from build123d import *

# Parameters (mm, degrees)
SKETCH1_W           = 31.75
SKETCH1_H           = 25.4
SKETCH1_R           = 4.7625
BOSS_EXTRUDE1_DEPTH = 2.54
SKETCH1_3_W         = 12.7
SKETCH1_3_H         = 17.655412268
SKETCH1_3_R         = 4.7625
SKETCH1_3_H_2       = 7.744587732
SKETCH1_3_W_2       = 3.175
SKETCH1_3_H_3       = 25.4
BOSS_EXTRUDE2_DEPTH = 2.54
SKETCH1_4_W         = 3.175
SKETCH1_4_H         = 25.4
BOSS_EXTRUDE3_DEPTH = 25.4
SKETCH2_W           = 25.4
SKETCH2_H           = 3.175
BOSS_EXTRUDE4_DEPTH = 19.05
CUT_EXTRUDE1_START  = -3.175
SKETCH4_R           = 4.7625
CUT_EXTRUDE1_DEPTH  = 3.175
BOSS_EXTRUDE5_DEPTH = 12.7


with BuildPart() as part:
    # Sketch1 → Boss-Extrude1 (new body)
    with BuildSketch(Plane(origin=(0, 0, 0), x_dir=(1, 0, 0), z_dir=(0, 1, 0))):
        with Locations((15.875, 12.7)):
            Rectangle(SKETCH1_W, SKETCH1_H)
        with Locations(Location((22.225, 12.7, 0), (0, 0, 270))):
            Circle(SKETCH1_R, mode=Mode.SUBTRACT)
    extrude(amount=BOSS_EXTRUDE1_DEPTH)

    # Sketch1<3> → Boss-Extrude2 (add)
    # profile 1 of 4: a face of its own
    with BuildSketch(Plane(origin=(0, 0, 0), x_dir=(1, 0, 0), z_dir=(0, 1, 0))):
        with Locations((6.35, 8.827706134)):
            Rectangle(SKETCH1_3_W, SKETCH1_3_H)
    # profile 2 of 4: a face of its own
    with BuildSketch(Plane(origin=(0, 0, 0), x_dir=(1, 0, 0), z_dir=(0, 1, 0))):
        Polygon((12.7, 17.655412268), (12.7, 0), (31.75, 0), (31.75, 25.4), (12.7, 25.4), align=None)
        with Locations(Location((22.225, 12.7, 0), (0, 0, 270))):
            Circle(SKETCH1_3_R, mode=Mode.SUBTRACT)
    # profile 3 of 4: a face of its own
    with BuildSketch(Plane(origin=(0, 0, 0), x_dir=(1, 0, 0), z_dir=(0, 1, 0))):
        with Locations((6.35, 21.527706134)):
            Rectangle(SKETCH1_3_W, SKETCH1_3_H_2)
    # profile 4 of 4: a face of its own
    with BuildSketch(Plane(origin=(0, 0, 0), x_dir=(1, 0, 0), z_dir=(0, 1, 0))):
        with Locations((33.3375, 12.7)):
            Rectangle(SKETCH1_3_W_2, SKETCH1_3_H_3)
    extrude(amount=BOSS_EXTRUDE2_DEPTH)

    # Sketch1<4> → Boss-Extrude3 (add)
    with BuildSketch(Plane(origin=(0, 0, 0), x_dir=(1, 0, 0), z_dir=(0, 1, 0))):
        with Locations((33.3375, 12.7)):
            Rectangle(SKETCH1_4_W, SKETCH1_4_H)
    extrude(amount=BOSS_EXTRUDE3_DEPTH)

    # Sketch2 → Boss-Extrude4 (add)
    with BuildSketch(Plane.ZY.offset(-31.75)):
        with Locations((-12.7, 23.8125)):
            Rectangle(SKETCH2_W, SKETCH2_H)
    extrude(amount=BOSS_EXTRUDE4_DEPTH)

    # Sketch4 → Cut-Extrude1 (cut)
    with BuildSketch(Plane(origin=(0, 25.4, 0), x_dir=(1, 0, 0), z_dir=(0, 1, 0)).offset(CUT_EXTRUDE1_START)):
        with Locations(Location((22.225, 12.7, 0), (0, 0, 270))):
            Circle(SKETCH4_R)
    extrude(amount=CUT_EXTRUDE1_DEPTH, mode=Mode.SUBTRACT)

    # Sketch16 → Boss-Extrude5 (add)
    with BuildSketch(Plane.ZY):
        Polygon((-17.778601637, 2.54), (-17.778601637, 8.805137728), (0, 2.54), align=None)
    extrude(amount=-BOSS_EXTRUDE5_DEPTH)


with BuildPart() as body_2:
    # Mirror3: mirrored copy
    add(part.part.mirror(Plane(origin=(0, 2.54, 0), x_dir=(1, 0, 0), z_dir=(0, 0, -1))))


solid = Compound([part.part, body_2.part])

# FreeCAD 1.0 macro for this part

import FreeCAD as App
import Part
import Sketcher
from FreeCAD import Vector
Q = App.Units.Quantity


def add_polygon(sketch, points):
    """Adds a closed chain of lines whose ends are joined by coincident constraints."""
    first, n = sketch.GeometryCount, len(points)
    for a, b in zip(points, points[1:] + points[:1]):
        sketch.addGeometry(Part.LineSegment(App.Vector(*a, 0), App.Vector(*b, 0)), False)
    for i in range(n):
        sketch.addConstraint(Sketcher.Constraint("Coincident", first + i, 2, first + (i + 1) % n, 1))

doc = App.newDocument("Part")
body = doc.addObject("PartDesign::Body", "Body")

sketch1 = doc.addObject("Sketcher::SketchObject", "Sketch")
body.addObject(sketch1)
sketch1.AttachmentSupport = (doc.XZ_Plane, [""])
sketch1.MapMode = "FlatFace"
add_polygon(sketch1, [(0, -25.4), (0, 0), (31.75, 0), (31.75, -25.4)])
sketch1.addGeometry(Part.Circle(Vector(22.225, -12.7, 0), Vector(0, 0, 1), 4.7625), False)
sketch1.addConstraint([
    Sketcher.Constraint("Vertical", 0),
    Sketcher.Constraint("Horizontal", 1),
    Sketcher.Constraint("Vertical", 2),
    Sketcher.Constraint("Horizontal", 3),
    Sketcher.Constraint("Coincident", 0, 2, -1, 1),
    Sketcher.Constraint("DistanceY", 0, 1, 0, 2, Q("1 in")),
    Sketcher.Constraint("Diameter", 4, Q("0.375 in")),
    Sketcher.Constraint("DistanceX", 1, 1, 1, 2, Q("1.25 in")),
    Sketcher.Constraint("DistanceY", 4, 3, -1, 1, Q("0.5 in")),
    Sketcher.Constraint("DistanceX", -1, 1, 4, 3, Q("0.875 in")),
])
pad1 = doc.addObject("PartDesign::Pad", "Pad")
body.addObject(pad1)
pad1.Profile = sketch1
pad1.Length = Q("0.1 in")
pad1.Reversed = True

sketch2 = doc.addObject("Sketcher::SketchObject", "Sketch001")
body.addObject(sketch2)
sketch2.AttachmentSupport = (doc.XZ_Plane, [""])
sketch2.MapMode = "FlatFace"
add_polygon(sketch2, [(0, 0), (34.925, 0), (34.925, -25.4), (0, -25.4)])
sketch2.addGeometry(Part.Circle(Vector(22.225, -12.7, 0), Vector(0, 0, 1), 4.7625), False)
sketch2.addConstraint([
    Sketcher.Constraint("Horizontal", 0),
    Sketcher.Constraint("Vertical", 1),
    Sketcher.Constraint("Horizontal", 2),
    Sketcher.Constraint("Vertical", 3),
    Sketcher.Constraint("Coincident", 3, 2, -1, 1),
    Sketcher.Constraint("DistanceY", 1, 2, 1, 1, Q("1 in")),
    Sketcher.Constraint("Diameter", 4, Q("0.375 in")),
    Sketcher.Constraint("DistanceY", 4, 3, -1, 1, Q("0.5 in")),
    Sketcher.Constraint("DistanceX", 4, 3, 0, 2, Q("0.5 in")),
    Sketcher.Constraint("DistanceX", 0, 1, 0, 2, Q("1.375 in")),
])
pad2 = doc.addObject("PartDesign::Pad", "Pad001")
body.addObject(pad2)
pad2.Profile = sketch2
pad2.Length = Q("0.1 in")
pad2.Reversed = True

sketch3 = doc.addObject("Sketcher::SketchObject", "Sketch002")
body.addObject(sketch3)
sketch3.AttachmentSupport = (doc.XZ_Plane, [""])
sketch3.MapMode = "FlatFace"
add_polygon(sketch3, [(31.75, -25.4), (31.75, 0), (34.925, 0), (34.925, -25.4)])
sketch3.addConstraint([
    Sketcher.Constraint("Vertical", 0),
    Sketcher.Constraint("Horizontal", 1),
    Sketcher.Constraint("Vertical", 2),
    Sketcher.Constraint("Horizontal", 3),
    Sketcher.Constraint("PointOnObject", 0, 2, -1),
    Sketcher.Constraint("DistanceY", 0, 1, 0, 2, Q("1 in")),
    Sketcher.Constraint("DistanceX", 1, 1, 1, 2, Q("0.125 in")),
    Sketcher.Constraint("DistanceX", -1, 1, 0, 2, Q("1.25 in")),
])
pad3 = doc.addObject("PartDesign::Pad", "Pad002")
body.addObject(pad3)
pad3.Profile = sketch3
pad3.Length = Q("1 in")
pad3.Reversed = True

sketch4 = doc.addObject("Sketcher::SketchObject", "Sketch003")
body.addObject(sketch4)
sketch4.AttachmentSupport = (doc.YZ_Plane, [""])
sketch4.MapMode = "FlatFace"
sketch4.AttachmentOffset = App.Placement(Vector(0, 0, 1.25 * 25.4), App.Rotation())
add_polygon(sketch4, [(25.4, -25.4), (22.225, -25.4), (22.225, 0), (25.4, 0)])
sketch4.addConstraint([
    Sketcher.Constraint("Horizontal", 0),
    Sketcher.Constraint("Vertical", 1),
    Sketcher.Constraint("Horizontal", 2),
    Sketcher.Constraint("Vertical", 3),
    Sketcher.Constraint("PointOnObject", 1, 2, -1),
    Sketcher.Constraint("DistanceY", 1, 1, 1, 2, Q("1 in")),
    Sketcher.Constraint("DistanceX", -1, 1, 2, 2, Q("1 in")),
    Sketcher.Constraint("DistanceX", 0, 2, 0, 1, Q("0.125 in")),
])
pad4 = doc.addObject("PartDesign::Pad", "Pad003")
body.addObject(pad4)
pad4.Profile = sketch4
pad4.Length = Q("0.75 in")
pad4.Reversed = True

sketch5 = doc.addObject("Sketcher::SketchObject", "Sketch004")
body.addObject(sketch5)
sketch5.AttachmentSupport = (doc.XZ_Plane, [""])
sketch5.MapMode = "FlatFace"
sketch5.AttachmentOffset = App.Placement(Vector(0, 0, -0.875 * 25.4), App.Rotation())
sketch5.addGeometry(Part.Circle(Vector(22.225, -12.7, 0), Vector(0, 0, 1), 4.7625), False)
sketch5.addConstraint([
    Sketcher.Constraint("Diameter", 0, Q("0.375 in")),
    Sketcher.Constraint("DistanceY", 0, 3, -1, 1, Q("0.5 in")),
    Sketcher.Constraint("DistanceX", -1, 1, 0, 3, Q("0.875 in")),
])
pocket1 = doc.addObject("PartDesign::Pocket", "Pocket")
body.addObject(pocket1)
pocket1.Profile = sketch5
pocket1.Length = Q("0.125 in")

sketch6 = doc.addObject("Sketcher::SketchObject", "Sketch005")
body.addObject(sketch6)
sketch6.AttachmentSupport = (doc.YZ_Plane, [""])
sketch6.MapMode = "FlatFace"
add_polygon(sketch6, [(8.805138, -17.778602), (2.54, -17.778602), (2.54, 0)])
sketch6.addConstraint([
    Sketcher.Constraint("Horizontal", 0),
    Sketcher.Constraint("Vertical", 1),
    Sketcher.Constraint("PointOnObject", 1, 2, -1),
    Sketcher.Constraint("DistanceX", -1, 1, 0, 2, Q("0.1 in")),
    Sketcher.Constraint("DistanceY", 1, 1, 1, 2, 17.778602),
    Sketcher.Constraint("DistanceX", 0, 2, 0, 1, 6.265138),
])
pad5 = doc.addObject("PartDesign::Pad", "Pad004")
body.addObject(pad5)
pad5.Profile = sketch6
pad5.Length = Q("0.5 in")
body2 = doc.addObject("PartDesign::Body", "Body001")
doc.recompute()

mirroring = doc.addObject("Part::Mirroring", "Mirroring")
mirroring.Source = body
mirroring.Base = Vector(0, 2.54, 0)
mirroring.Normal = Vector(0, 0, -1)
body2.BaseFeature = mirroring
doc.recompute()
mirroring.Visibility = False

doc.recompute()
